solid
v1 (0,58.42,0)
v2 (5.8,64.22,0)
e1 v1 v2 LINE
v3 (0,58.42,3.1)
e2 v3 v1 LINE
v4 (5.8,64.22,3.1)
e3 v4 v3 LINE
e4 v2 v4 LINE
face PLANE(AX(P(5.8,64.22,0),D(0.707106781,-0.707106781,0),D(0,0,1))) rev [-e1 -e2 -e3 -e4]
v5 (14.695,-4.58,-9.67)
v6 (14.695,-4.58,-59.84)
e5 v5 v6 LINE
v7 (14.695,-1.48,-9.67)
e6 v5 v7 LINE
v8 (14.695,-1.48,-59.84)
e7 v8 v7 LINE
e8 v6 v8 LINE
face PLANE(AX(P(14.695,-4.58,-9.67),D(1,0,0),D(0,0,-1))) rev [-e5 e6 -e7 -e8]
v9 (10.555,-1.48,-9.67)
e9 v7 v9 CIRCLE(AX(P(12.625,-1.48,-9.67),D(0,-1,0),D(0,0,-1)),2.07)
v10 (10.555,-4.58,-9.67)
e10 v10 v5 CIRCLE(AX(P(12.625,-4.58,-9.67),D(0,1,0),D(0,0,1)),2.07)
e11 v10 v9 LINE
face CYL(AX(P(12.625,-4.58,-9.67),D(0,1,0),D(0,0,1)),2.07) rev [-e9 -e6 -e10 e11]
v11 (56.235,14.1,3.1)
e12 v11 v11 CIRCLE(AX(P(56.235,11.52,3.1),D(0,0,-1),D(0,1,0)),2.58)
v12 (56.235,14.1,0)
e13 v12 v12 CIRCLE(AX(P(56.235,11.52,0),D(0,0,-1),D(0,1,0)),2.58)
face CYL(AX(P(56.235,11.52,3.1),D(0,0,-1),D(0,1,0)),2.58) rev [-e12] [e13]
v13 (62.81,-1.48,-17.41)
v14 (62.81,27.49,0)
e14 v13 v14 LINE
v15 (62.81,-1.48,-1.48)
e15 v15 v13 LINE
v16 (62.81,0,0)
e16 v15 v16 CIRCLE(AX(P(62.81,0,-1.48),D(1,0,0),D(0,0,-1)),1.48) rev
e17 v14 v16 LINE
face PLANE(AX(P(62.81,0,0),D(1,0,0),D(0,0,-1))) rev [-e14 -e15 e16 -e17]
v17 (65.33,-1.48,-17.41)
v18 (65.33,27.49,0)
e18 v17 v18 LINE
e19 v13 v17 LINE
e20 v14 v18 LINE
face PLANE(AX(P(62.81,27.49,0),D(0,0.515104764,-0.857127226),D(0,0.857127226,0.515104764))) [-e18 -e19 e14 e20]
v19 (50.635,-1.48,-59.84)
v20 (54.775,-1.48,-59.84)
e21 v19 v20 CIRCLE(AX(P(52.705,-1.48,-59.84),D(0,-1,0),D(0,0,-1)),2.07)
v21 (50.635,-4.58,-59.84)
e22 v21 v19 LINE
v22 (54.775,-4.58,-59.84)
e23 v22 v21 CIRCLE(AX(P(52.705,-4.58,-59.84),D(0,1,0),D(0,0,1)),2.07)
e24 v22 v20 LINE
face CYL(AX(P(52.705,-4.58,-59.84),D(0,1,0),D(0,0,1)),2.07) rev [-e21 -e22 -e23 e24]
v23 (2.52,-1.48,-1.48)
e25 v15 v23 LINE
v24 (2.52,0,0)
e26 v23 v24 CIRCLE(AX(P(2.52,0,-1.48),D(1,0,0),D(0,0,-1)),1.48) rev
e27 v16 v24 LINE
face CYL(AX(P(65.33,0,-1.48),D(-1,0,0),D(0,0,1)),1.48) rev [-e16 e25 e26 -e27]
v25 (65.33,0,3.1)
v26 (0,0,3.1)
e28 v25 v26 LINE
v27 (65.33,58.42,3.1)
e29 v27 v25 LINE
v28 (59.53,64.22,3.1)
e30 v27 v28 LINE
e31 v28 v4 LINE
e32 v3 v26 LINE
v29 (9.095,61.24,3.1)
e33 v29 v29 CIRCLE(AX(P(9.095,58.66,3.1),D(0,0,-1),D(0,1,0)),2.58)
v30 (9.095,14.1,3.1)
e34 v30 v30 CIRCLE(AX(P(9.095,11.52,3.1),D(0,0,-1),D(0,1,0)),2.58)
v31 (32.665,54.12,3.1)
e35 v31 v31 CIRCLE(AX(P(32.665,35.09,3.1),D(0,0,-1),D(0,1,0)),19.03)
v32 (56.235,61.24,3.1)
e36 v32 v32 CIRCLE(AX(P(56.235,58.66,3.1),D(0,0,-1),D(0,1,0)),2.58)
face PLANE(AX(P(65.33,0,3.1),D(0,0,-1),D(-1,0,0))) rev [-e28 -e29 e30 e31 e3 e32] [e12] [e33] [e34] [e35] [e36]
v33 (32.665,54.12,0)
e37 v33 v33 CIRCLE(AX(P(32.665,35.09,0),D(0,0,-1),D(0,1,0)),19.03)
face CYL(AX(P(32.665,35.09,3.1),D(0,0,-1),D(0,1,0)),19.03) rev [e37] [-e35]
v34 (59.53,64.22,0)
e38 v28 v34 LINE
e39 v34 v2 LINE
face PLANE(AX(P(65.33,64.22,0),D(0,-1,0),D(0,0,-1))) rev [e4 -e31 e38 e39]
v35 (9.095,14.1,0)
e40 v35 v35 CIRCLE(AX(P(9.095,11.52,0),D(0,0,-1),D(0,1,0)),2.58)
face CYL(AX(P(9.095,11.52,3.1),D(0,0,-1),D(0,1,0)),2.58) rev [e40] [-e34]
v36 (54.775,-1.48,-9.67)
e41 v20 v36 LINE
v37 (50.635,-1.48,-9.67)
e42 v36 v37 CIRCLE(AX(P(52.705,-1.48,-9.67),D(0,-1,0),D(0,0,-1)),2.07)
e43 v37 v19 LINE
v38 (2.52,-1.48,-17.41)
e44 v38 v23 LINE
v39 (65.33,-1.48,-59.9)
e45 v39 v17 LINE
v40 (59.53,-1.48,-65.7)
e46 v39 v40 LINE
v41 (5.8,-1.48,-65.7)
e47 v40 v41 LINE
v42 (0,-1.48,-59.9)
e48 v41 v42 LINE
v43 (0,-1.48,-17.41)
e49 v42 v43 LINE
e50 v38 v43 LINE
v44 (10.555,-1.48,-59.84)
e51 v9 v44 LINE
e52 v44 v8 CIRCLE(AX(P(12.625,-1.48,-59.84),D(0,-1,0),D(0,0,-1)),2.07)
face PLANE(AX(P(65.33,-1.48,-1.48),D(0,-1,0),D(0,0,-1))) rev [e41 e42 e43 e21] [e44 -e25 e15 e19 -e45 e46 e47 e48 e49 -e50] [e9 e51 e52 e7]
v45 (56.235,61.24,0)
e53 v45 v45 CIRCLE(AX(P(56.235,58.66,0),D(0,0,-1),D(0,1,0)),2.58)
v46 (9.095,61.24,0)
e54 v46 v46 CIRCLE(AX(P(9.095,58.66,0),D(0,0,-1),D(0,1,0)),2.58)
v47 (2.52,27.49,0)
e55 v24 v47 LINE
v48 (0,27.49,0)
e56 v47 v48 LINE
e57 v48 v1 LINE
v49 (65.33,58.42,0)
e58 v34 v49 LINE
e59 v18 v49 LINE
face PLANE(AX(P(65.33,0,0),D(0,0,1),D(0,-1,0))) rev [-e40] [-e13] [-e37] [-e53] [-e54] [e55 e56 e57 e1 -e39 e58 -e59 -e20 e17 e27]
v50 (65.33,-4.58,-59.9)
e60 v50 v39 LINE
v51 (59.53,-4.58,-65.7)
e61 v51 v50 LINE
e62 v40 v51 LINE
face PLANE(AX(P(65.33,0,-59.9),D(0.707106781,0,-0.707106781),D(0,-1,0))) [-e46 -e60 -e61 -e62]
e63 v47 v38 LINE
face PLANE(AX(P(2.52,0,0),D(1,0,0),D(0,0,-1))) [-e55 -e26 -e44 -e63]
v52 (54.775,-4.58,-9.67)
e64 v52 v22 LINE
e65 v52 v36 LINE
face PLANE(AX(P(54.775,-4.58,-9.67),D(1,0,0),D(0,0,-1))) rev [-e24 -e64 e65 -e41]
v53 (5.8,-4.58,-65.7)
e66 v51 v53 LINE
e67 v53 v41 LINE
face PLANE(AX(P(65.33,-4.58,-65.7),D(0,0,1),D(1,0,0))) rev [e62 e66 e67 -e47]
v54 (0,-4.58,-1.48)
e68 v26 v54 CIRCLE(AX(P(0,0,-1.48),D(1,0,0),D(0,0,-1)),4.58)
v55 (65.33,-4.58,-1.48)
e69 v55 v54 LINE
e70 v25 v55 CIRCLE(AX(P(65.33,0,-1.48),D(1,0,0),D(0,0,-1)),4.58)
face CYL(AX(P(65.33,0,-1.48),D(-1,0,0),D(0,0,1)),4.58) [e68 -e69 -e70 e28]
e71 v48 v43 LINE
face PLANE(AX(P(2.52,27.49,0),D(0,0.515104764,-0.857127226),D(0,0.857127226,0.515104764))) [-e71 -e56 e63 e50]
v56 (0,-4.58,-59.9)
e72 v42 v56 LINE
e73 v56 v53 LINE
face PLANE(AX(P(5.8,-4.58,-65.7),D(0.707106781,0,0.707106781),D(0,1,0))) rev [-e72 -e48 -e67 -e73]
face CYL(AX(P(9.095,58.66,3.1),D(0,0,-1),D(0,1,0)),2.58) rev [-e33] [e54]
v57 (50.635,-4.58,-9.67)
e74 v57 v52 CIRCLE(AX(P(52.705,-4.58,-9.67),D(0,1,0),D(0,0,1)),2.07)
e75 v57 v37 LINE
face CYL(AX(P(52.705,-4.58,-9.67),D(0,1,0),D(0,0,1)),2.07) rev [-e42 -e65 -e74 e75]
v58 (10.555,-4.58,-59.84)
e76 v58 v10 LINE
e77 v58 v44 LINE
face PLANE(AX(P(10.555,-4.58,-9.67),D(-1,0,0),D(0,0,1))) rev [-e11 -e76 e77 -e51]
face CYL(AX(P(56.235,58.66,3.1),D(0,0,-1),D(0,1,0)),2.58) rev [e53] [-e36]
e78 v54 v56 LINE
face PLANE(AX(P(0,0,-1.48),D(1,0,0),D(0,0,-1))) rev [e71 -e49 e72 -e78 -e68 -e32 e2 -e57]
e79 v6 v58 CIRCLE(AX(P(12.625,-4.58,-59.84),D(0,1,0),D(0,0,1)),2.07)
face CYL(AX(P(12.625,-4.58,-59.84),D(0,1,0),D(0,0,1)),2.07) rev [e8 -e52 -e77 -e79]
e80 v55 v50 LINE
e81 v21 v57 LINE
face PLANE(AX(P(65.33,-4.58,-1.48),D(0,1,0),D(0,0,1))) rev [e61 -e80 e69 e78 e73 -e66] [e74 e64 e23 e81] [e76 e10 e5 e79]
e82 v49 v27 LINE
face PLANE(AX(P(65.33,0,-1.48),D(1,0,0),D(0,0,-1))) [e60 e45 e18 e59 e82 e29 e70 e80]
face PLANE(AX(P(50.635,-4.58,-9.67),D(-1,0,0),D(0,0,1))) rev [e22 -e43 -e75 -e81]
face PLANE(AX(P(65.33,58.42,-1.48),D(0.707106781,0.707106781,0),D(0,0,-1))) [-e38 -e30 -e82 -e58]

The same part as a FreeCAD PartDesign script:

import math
import FreeCAD as App
import Part
import Sketcher
Q = App.Units.Quantity


def edges_at(feature, points):
    """Names of the edges that pass closest to the given points."""
    edges = feature.Shape.Edges
    near = lambda p: min(range(len(edges)), key=lambda i: edges[i].distToShape(Part.Vertex(*p))[0])
    return sorted({f"Edge{near(p) + 1}" for p in points})

doc = App.newDocument("Part")
body = doc.addObject("PartDesign::Body", "Body")

# Sketch on YZ plane
sketch1 = doc.addObject("Sketcher::SketchObject", "Sketch")
body.addObject(sketch1)
sketch1.AttachmentSupport = (doc.YZ_Plane, [""])
sketch1.MapMode = "FlatFace"
sketch1.addGeometry([
    Part.LineSegment(App.Vector(0, 0, 0), App.Vector(64.2, 0, 0)),  # 0
    Part.LineSegment(App.Vector(64.2, 0, 0), App.Vector(64.2, 3.1, 0)),  # 1
    Part.LineSegment(App.Vector(64.2, 3.1, 0), App.Vector(0, 3.1, 0)),  # 2
    Part.ArcOfCircle(Part.Circle(App.Vector(0, -1.5, 0), App.Vector(0, 0, 1), 4.6), math.radians(90), math.radians(180)),  # 3
    Part.LineSegment(App.Vector(-4.6, -1.5, 0), App.Vector(-4.6, -65.7, 0)),  # 4
    Part.LineSegment(App.Vector(-4.6, -65.7, 0), App.Vector(-1.5, -65.7, 0)),  # 5
    Part.LineSegment(App.Vector(-1.5, -65.7, 0), App.Vector(-1.5, -1.5, 0)),  # 6
    Part.ArcOfCircle(Part.Circle(App.Vector(0, -1.5, 0), App.Vector(0, 0, 1), 1.5), math.radians(90), math.radians(180)),  # 7
], False)
sketch1.addConstraint([
    Sketcher.Constraint("Coincident", 0, 2, 1, 1),
    Sketcher.Constraint("Coincident", 1, 2, 2, 1),
    Sketcher.Constraint("Tangent", 2, 2, 3, 1),
    Sketcher.Constraint("Tangent", 3, 2, 4, 1),
    Sketcher.Constraint("Coincident", 4, 2, 5, 1),
    Sketcher.Constraint("Coincident", 5, 2, 6, 1),
    Sketcher.Constraint("Tangent", 6, 2, 7, 2),
    Sketcher.Constraint("Tangent", 7, 1, 0, 1),
    Sketcher.Constraint("Horizontal", 0),
    Sketcher.Constraint("Vertical", 1),
    Sketcher.Constraint("Horizontal", 2),
    Sketcher.Constraint("Vertical", 4),
    Sketcher.Constraint("Horizontal", 5),
    Sketcher.Constraint("Vertical", 6),
    Sketcher.Constraint("Coincident", 7, 1, -1, 1),
    Sketcher.Constraint("Coincident", 7, 3, 3, 3),
    Sketcher.Constraint("Equal", 2, 4),
    Sketcher.Constraint("Radius", 3, Q("4.58 mm")),
    Sketcher.Constraint("Radius", 7, Q("1.48 mm")),
    Sketcher.Constraint("DistanceX", 0, 1, 0, 2, Q("64.22 mm")),
])
pad1 = doc.addObject("PartDesign::Pad", "Pad")
body.addObject(pad1)
pad1.Profile = sketch1
pad1.Length = 65.33
doc.recompute()

chamfer = doc.addObject("PartDesign::Chamfer", "Chamfer")
body.addObject(chamfer)
chamfer.Base = (pad1, edges_at(pad1, [
    (65.33, 64.22, 1.55),
    (65.33, -3.03, -65.7),
    (0, -3.03, -65.7),
    (0, 64.22, 1.55),
]))
chamfer.Size = 5.8

# Sketch on YZ plane
sketch2 = doc.addObject("Sketcher::SketchObject", "Sketch001")
body.addObject(sketch2)
sketch2.AttachmentSupport = (doc.YZ_Plane, [""])
sketch2.MapMode = "FlatFace"
sketch2.AttachmentOffset = App.Placement(App.Vector(0, 0, 65.33), App.Rotation())
sketch2.addGeometry([
    Part.LineSegment(App.Vector(-1, -17, 0), App.Vector(27, 0, 0)),
    Part.LineSegment(App.Vector(27, 0, 0), App.Vector(-1, 0, 0)),
    Part.LineSegment(App.Vector(-1, 0, 0), App.Vector(-1, -17, 0)),
], False)
sketch2.addConstraint([
    Sketcher.Constraint("Coincident", 0, 2, 1, 1),
    Sketcher.Constraint("Coincident", 1, 2, 2, 1),
    Sketcher.Constraint("Coincident", 2, 2, 0, 1),
    Sketcher.Constraint("Horizontal", 1),
    Sketcher.Constraint("Vertical", 2),
    Sketcher.Constraint("PointOnObject", 0, 2, -1),
    Sketcher.Constraint("DistanceX", 1, 2, 1, 1, Q("28.97 mm")),
    Sketcher.Constraint("DistanceY", 2, 2, 2, 1, Q("17.41 mm")),
    Sketcher.Constraint("DistanceX", -1, 1, 0, 2, Q("27.49 mm")),
])
pad2 = doc.addObject("PartDesign::Pad", "Pad001")
body.addObject(pad2)
pad2.Profile = sketch2
pad2.Length = 2.52
pad2.Reversed = True

# Sketch on YZ plane
sketch3 = doc.addObject("Sketcher::SketchObject", "Sketch002")
body.addObject(sketch3)
sketch3.AttachmentSupport = (doc.YZ_Plane, [""])
sketch3.MapMode = "FlatFace"
sketch3.addGeometry([
    Part.LineSegment(App.Vector(27, 0, 0), App.Vector(-1, -17, 0)),
    Part.LineSegment(App.Vector(-1, -17, 0), App.Vector(-1, 0, 0)),
    Part.LineSegment(App.Vector(-1, 0, 0), App.Vector(27, 0, 0)),
], False)
sketch3.addConstraint([
    Sketcher.Constraint("Coincident", 0, 2, 1, 1),
    Sketcher.Constraint("Coincident", 1, 2, 2, 1),
    Sketcher.Constraint("Coincident", 2, 2, 0, 1),
    Sketcher.Constraint("Vertical", 1),
    Sketcher.Constraint("Horizontal", 2),
    Sketcher.Constraint("PointOnObject", 1, 2, -1),
    Sketcher.Constraint("DistanceX", 2, 1, 2, 2, Q("28.97 mm")),
    Sketcher.Constraint("DistanceY", 1, 1, 1, 2, Q("17.41 mm")),
    Sketcher.Constraint("DistanceX", 0, 2, -1, 1, Q("1.48 mm")),
])
pad3 = doc.addObject("PartDesign::Pad", "Pad002")
body.addObject(pad3)
pad3.Profile = sketch3
pad3.Length = 2.52

# Sketch on XY plane
sketch4 = doc.addObject("Sketcher::SketchObject", "Sketch003")
body.addObject(sketch4)
sketch4.AttachmentSupport = (doc.XY_Plane, [""])
sketch4.MapMode = "FlatFace"
sketch4.addGeometry([
    Part.Circle(App.Vector(32.7, 35.1, 0), App.Vector(0, 0, 1), 19),  # 0
    Part.Circle(App.Vector(56.2, 58.7, 0), App.Vector(0, 0, 1), 2.6),  # 1
    Part.Circle(App.Vector(9.1, 58.7, 0), App.Vector(0, 0, 1), 2.6),  # 2
    Part.Circle(App.Vector(9.1, 11.5, 0), App.Vector(0, 0, 1), 2.6),  # 3
    Part.Circle(App.Vector(56.2, 11.5, 0), App.Vector(0, 0, 1), 2.6),  # 4
], False)
sketch4.addConstraint([
    Sketcher.Constraint("Equal", 1, 2),
    Sketcher.Constraint("Equal", 2, 3),
    Sketcher.Constraint("Equal", 3, 4),
    Sketcher.Constraint("Horizontal", 1, 3, 2, 3),
    Sketcher.Constraint("Horizontal", 3, 3, 4, 3),
    Sketcher.Constraint("Vertical", 2, 3, 3, 3),
    Sketcher.Constraint("Vertical", 1, 3, 4, 3),
    Sketcher.Constraint("Diameter", 0, Q("38.06 mm")),
    Sketcher.Constraint("Diameter", 1, Q("5.16 mm")),
    Sketcher.Constraint("DistanceY", -1, 1, 0, 3, Q("35.09 mm")),
    Sketcher.Constraint("DistanceY", -1, 1, 1, 3, Q("58.66 mm")),
    Sketcher.Constraint("DistanceY", -1, 1, 3, 3, Q("11.52 mm")),
    Sketcher.Constraint("DistanceX", 0, 3, 1, 3, Q("23.57 mm")),
    Sketcher.Constraint("DistanceX", 2, 3, 0, 3, Q("23.57 mm")),
    Sketcher.Constraint("DistanceX", -1, 1, 0, 3, Q("32.665 mm")),
])
pocket1 = doc.addObject("PartDesign::Pocket", "Pocket")
body.addObject(pocket1)
pocket1.Profile = sketch4
pocket1.Type = "ThroughAll"
pocket1.Reversed = True

# Sketch on XZ plane
sketch5 = doc.addObject("Sketcher::SketchObject", "Sketch004")
body.addObject(sketch5)
sketch5.AttachmentSupport = (doc.XZ_Plane, [""])
sketch5.MapMode = "FlatFace"
sketch5.AttachmentOffset = App.Placement(App.Vector(0, 0, 1.48), App.Rotation())
sketch5.addGeometry([
    Part.LineSegment(App.Vector(50.6, -59.8, 0), App.Vector(50.6, -9.7, 0)),  # 0
    Part.ArcOfCircle(Part.Circle(App.Vector(52.7, -9.7, 0), App.Vector(0, 0, 1), 2.1), math.radians(0), math.radians(180)),  # 1
    Part.LineSegment(App.Vector(54.8, -9.7, 0), App.Vector(54.8, -59.8, 0)),  # 2
    Part.ArcOfCircle(Part.Circle(App.Vector(52.7, -59.8, 0), App.Vector(0, 0, 1), 2.1), math.radians(180), math.radians(360)),  # 3
    Part.LineSegment(App.Vector(10.6, -59.8, 0), App.Vector(10.6, -9.7, 0)),  # 4
    Part.ArcOfCircle(Part.Circle(App.Vector(12.6, -9.7, 0), App.Vector(0, 0, 1), 2.1), math.radians(0), math.radians(180)),  # 5
    Part.LineSegment(App.Vector(14.7, -9.7, 0), App.Vector(14.7, -59.8, 0)),  # 6
    Part.ArcOfCircle(Part.Circle(App.Vector(12.6, -59.8, 0), App.Vector(0, 0, 1), 2.1), math.radians(180), math.radians(360)),  # 7
], False)
sketch5.addConstraint([
    Sketcher.Constraint("Tangent", 0, 2, 1, 2),
    Sketcher.Constraint("Tangent", 1, 1, 2, 1),
    Sketcher.Constraint("Tangent", 2, 2, 3, 2),
    Sketcher.Constraint("Tangent", 3, 1, 0, 1),
    Sketcher.Constraint("Tangent", 4, 2, 5, 2),
    Sketcher.Constraint("Tangent", 5, 1, 6, 1),
    Sketcher.Constraint("Tangent", 6, 2, 7, 2),
    Sketcher.Constraint("Tangent", 7, 1, 4, 1),
    Sketcher.Constraint("Vertical", 0),
    Sketcher.Constraint("Vertical", 2),
    Sketcher.Constraint("Vertical", 4),
    Sketcher.Constraint("Vertical", 6),
    Sketcher.Constraint("Equal", 3, 5),
    Sketcher.Constraint("Horizontal", 1, 3, 5, 3),
    Sketcher.Constraint("Horizontal", 3, 3, 7, 3),
    Sketcher.Constraint("Radius", 1, Q("2.07 mm")),
    Sketcher.Constraint("DistanceY", 0, 1, 0, 2, Q("50.17 mm")),
    Sketcher.Constraint("DistanceY", 1, 3, -1, 1, Q("9.67 mm")),
    Sketcher.Constraint("DistanceX", 5, 3, 1, 3, Q("40.08 mm")),
    Sketcher.Constraint("DistanceX", -1, 1, 1, 3, Q("52.705 mm")),
])
pocket2 = doc.addObject("PartDesign::Pocket", "Pocket001")
body.addObject(pocket2)
pocket2.Profile = sketch5
pocket2.Type = "ThroughAll"
pocket2.Midplane = True

doc.recompute()
